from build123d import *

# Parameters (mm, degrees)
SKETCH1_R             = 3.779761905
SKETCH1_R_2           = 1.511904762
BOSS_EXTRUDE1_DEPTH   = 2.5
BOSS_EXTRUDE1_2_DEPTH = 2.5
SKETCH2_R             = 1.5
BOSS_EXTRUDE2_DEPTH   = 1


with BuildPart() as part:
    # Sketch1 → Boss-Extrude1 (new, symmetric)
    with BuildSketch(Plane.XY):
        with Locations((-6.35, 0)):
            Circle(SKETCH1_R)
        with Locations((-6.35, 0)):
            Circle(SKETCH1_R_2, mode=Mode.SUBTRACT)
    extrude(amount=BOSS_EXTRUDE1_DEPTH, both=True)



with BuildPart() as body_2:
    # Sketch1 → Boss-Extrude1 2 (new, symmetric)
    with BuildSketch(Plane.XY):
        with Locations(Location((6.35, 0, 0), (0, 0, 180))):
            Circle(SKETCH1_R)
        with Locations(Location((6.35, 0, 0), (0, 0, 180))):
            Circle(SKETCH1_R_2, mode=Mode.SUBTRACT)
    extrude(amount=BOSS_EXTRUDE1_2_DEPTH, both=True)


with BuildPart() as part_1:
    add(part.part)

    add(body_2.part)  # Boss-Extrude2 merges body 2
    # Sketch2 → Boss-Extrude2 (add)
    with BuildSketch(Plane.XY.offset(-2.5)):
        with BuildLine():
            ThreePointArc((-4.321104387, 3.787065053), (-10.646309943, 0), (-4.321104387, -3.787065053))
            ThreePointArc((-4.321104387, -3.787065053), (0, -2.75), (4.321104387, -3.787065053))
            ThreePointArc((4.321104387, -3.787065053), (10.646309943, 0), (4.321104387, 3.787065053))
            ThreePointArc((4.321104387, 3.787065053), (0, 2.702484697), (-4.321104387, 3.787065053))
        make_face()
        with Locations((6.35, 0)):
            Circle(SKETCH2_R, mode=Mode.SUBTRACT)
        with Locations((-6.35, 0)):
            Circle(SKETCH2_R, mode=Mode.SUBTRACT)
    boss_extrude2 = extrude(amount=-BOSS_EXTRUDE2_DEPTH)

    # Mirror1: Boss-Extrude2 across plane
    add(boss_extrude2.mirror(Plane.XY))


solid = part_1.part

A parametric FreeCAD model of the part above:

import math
import FreeCAD as App
import Part
import Sketcher

V = App.Vector
Q = App.Units.Quantity

doc = App.newDocument("Part")
body = doc.addObject("PartDesign::Body", "Body")

sketch1 = body.newObject("Sketcher::SketchObject", "Sketch")
sketch1.AttachmentSupport = (doc.getObject("XY_Plane"), [""])
sketch1.MapMode = "FlatFace"
sketch1.addGeometry([
    Part.Circle(V(-6.3, 0, 0), V(0, 0, 1), 3.8),
    Part.Circle(V(-6.3, 0, 0), V(0, 0, 1), 1.5),
], False)
sketch1.addConstraint([
    Sketcher.Constraint("Coincident", 1, 3, 0, 3),
    Sketcher.Constraint("PointOnObject", 0, 3, -1),
    Sketcher.Constraint("Diameter", 1, Q("3.02381 mm")),
    Sketcher.Constraint("DistanceX", 0, 3, -1, 1, Q("6.35 mm")),
    Sketcher.Constraint("Diameter", 0, Q("7.559524 mm")),
])
pad1 = body.newObject("PartDesign::Pad", "Pad")
pad1.Profile = sketch1
pad1.Length = 5
pad1.Midplane = True
body2 = doc.addObject("PartDesign::Body", "Body001")

sketch2 = body2.newObject("Sketcher::SketchObject", "Sketch001")
sketch2.AttachmentSupport = (doc.getObject("XY_Plane001"), [""])
sketch2.MapMode = "FlatFace"
sketch2.addGeometry([
    Part.Circle(V(6.3, 0, 0), V(0, 0, 1), 3.8),
    Part.Circle(V(6.3, 0, 0), V(0, 0, 1), 1.5),
], False)
sketch2.addConstraint([
    Sketcher.Constraint("Coincident", 1, 3, 0, 3),
    Sketcher.Constraint("PointOnObject", 0, 3, -1),
    Sketcher.Constraint("Diameter", 1, Q("3.02381 mm")),
    Sketcher.Constraint("DistanceX", -1, 1, 0, 3, Q("6.35 mm")),
    Sketcher.Constraint("Diameter", 0, Q("7.559524 mm")),
])
pad2 = body2.newObject("PartDesign::Pad", "Pad001")
pad2.Profile = sketch2
pad2.Length = 5
pad2.Midplane = True
body.AllowCompound = True
doc.recompute()

boolean = body.newObject("PartDesign::Boolean", "Boolean")
boolean.Type = "Fuse"
boolean.addObjects([body2])

sketch3 = body.newObject("Sketcher::SketchObject", "Sketch002")
sketch3.AttachmentSupport = (doc.getObject("XY_Plane"), [""])
sketch3.MapMode = "FlatFace"
sketch3.AttachmentOffset = App.Placement(V(0, 0, -2.5), App.Rotation())
sketch3.addGeometry([
    Part.ArcOfCircle(Part.Circle(V(-6.3, 0, 0), V(0, 0, 1), 4.3), math.radians(62), math.radians(298)),
    Part.ArcOfCircle(Part.Circle(V(0, -12.3, 0), V(0, 0, 1), 9.5), math.radians(63), math.radians(117)),
    Part.ArcOfCircle(Part.Circle(V(6.3, 0, 0), V(0, 0, 1), 4.3), math.radians(-118), math.radians(118)),
    Part.ArcOfCircle(Part.Circle(V(0, 11.9, 0), V(0, 0, 1), 9.2), math.radians(-118), math.radians(-62)),
    Part.Circle(V(-6.3, 0, 0), V(0, 0, 1), 1.5),
    Part.Circle(V(6.3, 0, 0), V(0, 0, 1), 1.5),
], False)
sketch3.addConstraint([
    Sketcher.Constraint("Coincident", 0, 2, 1, 2),
    Sketcher.Constraint("Coincident", 1, 1, 2, 1),
    Sketcher.Constraint("Tangent", 2, 2, 3, 2),
    Sketcher.Constraint("Tangent", 3, 1, 0, 1),
    Sketcher.Constraint("Coincident", 4, 3, 0, 3),
    Sketcher.Constraint("Coincident", 5, 3, 2, 3),
    Sketcher.Constraint("Equal", 0, 2),
    Sketcher.Constraint("Equal", 4, 5),
    Sketcher.Constraint("Symmetric", 0, 3, 2, 3, -1, 1),
    Sketcher.Constraint("Symmetric", 0, 2, 1, 1, -2),
    Sketcher.Constraint("Vertical", 1, 1, 2, 2),
    Sketcher.Constraint("Diameter", 4, Q("3 mm")),
    Sketcher.Constraint("Radius", 3, Q("9.150202 mm")),
    Sketcher.Constraint("DistanceX", 0, 3, 2, 3, Q("12.7 mm")),
    Sketcher.Constraint("Radius", 0, Q("4.29631 mm")),
    Sketcher.Constraint("Radius", 1, Q("9.520833 mm")),
])
pad3 = body.newObject("PartDesign::Pad", "Pad002")
pad3.Profile = sketch3
pad3.Length = 1
pad3.Reversed = True
doc.recompute()

mirrored = body.newObject("PartDesign::Mirrored", "Mirrored")
mirrored.Originals = [pad3]
mirrored.MirrorPlane = (doc.getObject("XY_Plane"), [""])
body.Tip = mirrored

doc.recompute()
